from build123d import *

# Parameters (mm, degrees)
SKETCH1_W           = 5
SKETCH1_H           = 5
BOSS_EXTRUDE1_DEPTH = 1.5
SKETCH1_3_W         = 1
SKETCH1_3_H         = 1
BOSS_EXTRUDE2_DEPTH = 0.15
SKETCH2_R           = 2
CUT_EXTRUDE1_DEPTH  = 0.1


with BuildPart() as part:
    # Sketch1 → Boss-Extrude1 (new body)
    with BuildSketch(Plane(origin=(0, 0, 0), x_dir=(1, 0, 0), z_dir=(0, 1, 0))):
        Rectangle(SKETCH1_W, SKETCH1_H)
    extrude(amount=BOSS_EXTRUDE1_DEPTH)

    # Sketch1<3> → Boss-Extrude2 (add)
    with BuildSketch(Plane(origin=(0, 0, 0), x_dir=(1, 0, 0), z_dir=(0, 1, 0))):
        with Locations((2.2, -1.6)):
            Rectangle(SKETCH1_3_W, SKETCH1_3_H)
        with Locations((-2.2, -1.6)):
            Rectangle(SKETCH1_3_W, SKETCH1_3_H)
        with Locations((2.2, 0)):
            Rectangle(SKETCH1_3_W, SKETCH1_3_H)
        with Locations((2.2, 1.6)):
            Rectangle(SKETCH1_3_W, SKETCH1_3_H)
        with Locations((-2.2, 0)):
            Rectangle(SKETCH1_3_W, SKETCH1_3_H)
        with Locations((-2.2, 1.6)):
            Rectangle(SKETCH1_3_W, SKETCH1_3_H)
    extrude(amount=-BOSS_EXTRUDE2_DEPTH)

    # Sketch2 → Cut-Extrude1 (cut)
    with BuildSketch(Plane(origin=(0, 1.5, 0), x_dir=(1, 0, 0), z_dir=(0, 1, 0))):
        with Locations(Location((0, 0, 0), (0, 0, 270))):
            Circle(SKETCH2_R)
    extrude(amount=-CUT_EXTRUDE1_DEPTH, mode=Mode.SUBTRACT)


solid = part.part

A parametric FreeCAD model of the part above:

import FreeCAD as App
import Part
import Sketcher


def add_polygon(sketch, points):
    """Adds a closed chain of lines whose ends are joined by coincident constraints."""
    first, n = sketch.GeometryCount, len(points)
    for a, b in zip(points, points[1:] + points[:1]):
        sketch.addGeometry(Part.LineSegment(App.Vector(*a, 0), App.Vector(*b, 0)), False)
    for i in range(n):
        sketch.addConstraint(Sketcher.Constraint("Coincident", first + i, 2, first + (i + 1) % n, 1))

doc = App.newDocument("Part")
body = doc.addObject("PartDesign::Body", "Body")

# Sketch on XZ plane
sketch1 = body.newObject("Sketcher::SketchObject", "Sketch")
sketch1.AttachmentSupport = (doc.getObject("XZ_Plane"), [""])
sketch1.MapMode = "FlatFace"
add_polygon(sketch1, [(-2, -2), (-2, 2), (2, 2), (2, -2)])  # lines 0-3
sketch1.addConstraint(Sketcher.Constraint("Vertical", 0))
sketch1.addConstraint(Sketcher.Constraint("Horizontal", 1))
sketch1.addConstraint(Sketcher.Constraint("Vertical", 2))
sketch1.addConstraint(Sketcher.Constraint("Horizontal", 3))
sketch1.addConstraint(Sketcher.Constraint("Symmetric", 0, 2, 2, 2, -1, 1))
sketch1.addConstraint(Sketcher.Constraint("Equal", 3, 0))
sketch1.addConstraint(Sketcher.Constraint("DistanceX", 1, 1, 1, 2, 5.0))
pad1 = body.newObject("PartDesign::Pad", "Pad")
pad1.Profile = sketch1
pad1.Length = 1.5
pad1.Reversed = True

# Sketch on XZ plane
sketch2 = body.newObject("Sketcher::SketchObject", "Sketch001")
sketch2.AttachmentSupport = (doc.getObject("XZ_Plane"), [""])
sketch2.MapMode = "FlatFace"
add_polygon(sketch2, [(1.7, 1.1), (1.7, 2.1), (2.7, 2.1), (2.7, 1.1)])  # lines 0-3
add_polygon(sketch2, [(-2.7, 1.1), (-2.7, 2.1), (-1.7, 2.1), (-1.7, 1.1)])  # lines 4-7
add_polygon(sketch2, [(1.7, -0.5), (1.7, 0.5), (2.7, 0.5), (2.7, -0.5)])  # lines 8-11
add_polygon(sketch2, [(1.7, -2.1), (1.7, -1.1), (2.7, -1.1), (2.7, -2.1)])  # lines 12-15
add_polygon(sketch2, [(-2.7, -0.5), (-2.7, 0.5), (-1.7, 0.5), (-1.7, -0.5)])  # lines 16-19
add_polygon(sketch2, [(-2.7, -2.1), (-2.7, -1.1), (-1.7, -1.1), (-1.7, -2.1)])  # lines 20-23
sketch2.addConstraint(Sketcher.Constraint("Vertical", 0))
sketch2.addConstraint(Sketcher.Constraint("Horizontal", 1))
sketch2.addConstraint(Sketcher.Constraint("Vertical", 2))
sketch2.addConstraint(Sketcher.Constraint("Horizontal", 3))
sketch2.addConstraint(Sketcher.Constraint("Vertical", 4))
sketch2.addConstraint(Sketcher.Constraint("Horizontal", 5))
sketch2.addConstraint(Sketcher.Constraint("Vertical", 6))
sketch2.addConstraint(Sketcher.Constraint("Horizontal", 7))
sketch2.addConstraint(Sketcher.Constraint("Vertical", 8))
sketch2.addConstraint(Sketcher.Constraint("Horizontal", 9))
sketch2.addConstraint(Sketcher.Constraint("Vertical", 10))
sketch2.addConstraint(Sketcher.Constraint("Horizontal", 11))
sketch2.addConstraint(Sketcher.Constraint("Vertical", 12))
sketch2.addConstraint(Sketcher.Constraint("Horizontal", 13))
sketch2.addConstraint(Sketcher.Constraint("Vertical", 14))
sketch2.addConstraint(Sketcher.Constraint("Horizontal", 15))
sketch2.addConstraint(Sketcher.Constraint("Vertical", 16))
sketch2.addConstraint(Sketcher.Constraint("Horizontal", 17))
sketch2.addConstraint(Sketcher.Constraint("Vertical", 18))
sketch2.addConstraint(Sketcher.Constraint("Horizontal", 19))
sketch2.addConstraint(Sketcher.Constraint("Vertical", 20))
sketch2.addConstraint(Sketcher.Constraint("Horizontal", 21))
sketch2.addConstraint(Sketcher.Constraint("Vertical", 22))
sketch2.addConstraint(Sketcher.Constraint("Horizontal", 23))
sketch2.addConstraint(Sketcher.Constraint("Symmetric", 6, 2, 12, 2, -1, 1))
sketch2.addConstraint(Sketcher.Constraint("Symmetric", 4, 2, 14, 2, -1, 1))
sketch2.addConstraint(Sketcher.Constraint("Symmetric", 10, 2, 16, 2, -1, 1))
sketch2.addConstraint(Sketcher.Constraint("Symmetric", 8, 2, 18, 2, -1, 1))
sketch2.addConstraint(Sketcher.Constraint("Symmetric", 2, 2, 20, 2, -1, 1))
sketch2.addConstraint(Sketcher.Constraint("Symmetric", 0, 2, 22, 2, -1, 1))
sketch2.addConstraint(Sketcher.Constraint("Symmetric", 1, 2, 4, 2, -2))
sketch2.addConstraint(Sketcher.Constraint("Symmetric", 3, 2, 6, 2, -2))
sketch2.addConstraint(Sketcher.Constraint("Horizontal", 9, 2, 16, 2))
sketch2.addConstraint(Sketcher.Constraint("Vertical", 3, 2, 8, 2))
sketch2.addConstraint(Sketcher.Constraint("Vertical", 2, 2, 9, 2))
sketch2.addConstraint(Sketcher.Constraint("Equal", 23, 0))
sketch2.addConstraint(Sketcher.Constraint("Equal", 6, 8))
sketch2.addConstraint(Sketcher.Constraint("DistanceX", 1, 1, 1, 2, 1.0))
sketch2.addConstraint(Sketcher.Constraint("DistanceX", -1, 1, 0, 2, 1.7))
sketch2.addConstraint(Sketcher.Constraint("DistanceY", -1, 1, 0, 2, 2.1))
pad2 = body.newObject("PartDesign::Pad", "Pad001")
pad2.Profile = sketch2
pad2.Length = 0.15

# Sketch on XZ plane
sketch3 = body.newObject("Sketcher::SketchObject", "Sketch002")
sketch3.AttachmentSupport = (doc.getObject("XZ_Plane"), [""])
sketch3.MapMode = "FlatFace"
sketch3.AttachmentOffset = App.Placement(App.Vector(0, 0, -1.5), App.Rotation())
sketch3.addGeometry(Part.Circle(App.Vector(0, 0, 0), App.Vector(0, 0, 1), 2), False)
sketch3.addConstraint(Sketcher.Constraint("Coincident", 0, 3, -1, 1))
sketch3.addConstraint(Sketcher.Constraint("Diameter", 0, 4.0))
pocket1 = body.newObject("PartDesign::Pocket", "Pocket")
pocket1.Profile = sketch3
pocket1.Length = 0.1
pocket1.Reversed = True

doc.recompute()
